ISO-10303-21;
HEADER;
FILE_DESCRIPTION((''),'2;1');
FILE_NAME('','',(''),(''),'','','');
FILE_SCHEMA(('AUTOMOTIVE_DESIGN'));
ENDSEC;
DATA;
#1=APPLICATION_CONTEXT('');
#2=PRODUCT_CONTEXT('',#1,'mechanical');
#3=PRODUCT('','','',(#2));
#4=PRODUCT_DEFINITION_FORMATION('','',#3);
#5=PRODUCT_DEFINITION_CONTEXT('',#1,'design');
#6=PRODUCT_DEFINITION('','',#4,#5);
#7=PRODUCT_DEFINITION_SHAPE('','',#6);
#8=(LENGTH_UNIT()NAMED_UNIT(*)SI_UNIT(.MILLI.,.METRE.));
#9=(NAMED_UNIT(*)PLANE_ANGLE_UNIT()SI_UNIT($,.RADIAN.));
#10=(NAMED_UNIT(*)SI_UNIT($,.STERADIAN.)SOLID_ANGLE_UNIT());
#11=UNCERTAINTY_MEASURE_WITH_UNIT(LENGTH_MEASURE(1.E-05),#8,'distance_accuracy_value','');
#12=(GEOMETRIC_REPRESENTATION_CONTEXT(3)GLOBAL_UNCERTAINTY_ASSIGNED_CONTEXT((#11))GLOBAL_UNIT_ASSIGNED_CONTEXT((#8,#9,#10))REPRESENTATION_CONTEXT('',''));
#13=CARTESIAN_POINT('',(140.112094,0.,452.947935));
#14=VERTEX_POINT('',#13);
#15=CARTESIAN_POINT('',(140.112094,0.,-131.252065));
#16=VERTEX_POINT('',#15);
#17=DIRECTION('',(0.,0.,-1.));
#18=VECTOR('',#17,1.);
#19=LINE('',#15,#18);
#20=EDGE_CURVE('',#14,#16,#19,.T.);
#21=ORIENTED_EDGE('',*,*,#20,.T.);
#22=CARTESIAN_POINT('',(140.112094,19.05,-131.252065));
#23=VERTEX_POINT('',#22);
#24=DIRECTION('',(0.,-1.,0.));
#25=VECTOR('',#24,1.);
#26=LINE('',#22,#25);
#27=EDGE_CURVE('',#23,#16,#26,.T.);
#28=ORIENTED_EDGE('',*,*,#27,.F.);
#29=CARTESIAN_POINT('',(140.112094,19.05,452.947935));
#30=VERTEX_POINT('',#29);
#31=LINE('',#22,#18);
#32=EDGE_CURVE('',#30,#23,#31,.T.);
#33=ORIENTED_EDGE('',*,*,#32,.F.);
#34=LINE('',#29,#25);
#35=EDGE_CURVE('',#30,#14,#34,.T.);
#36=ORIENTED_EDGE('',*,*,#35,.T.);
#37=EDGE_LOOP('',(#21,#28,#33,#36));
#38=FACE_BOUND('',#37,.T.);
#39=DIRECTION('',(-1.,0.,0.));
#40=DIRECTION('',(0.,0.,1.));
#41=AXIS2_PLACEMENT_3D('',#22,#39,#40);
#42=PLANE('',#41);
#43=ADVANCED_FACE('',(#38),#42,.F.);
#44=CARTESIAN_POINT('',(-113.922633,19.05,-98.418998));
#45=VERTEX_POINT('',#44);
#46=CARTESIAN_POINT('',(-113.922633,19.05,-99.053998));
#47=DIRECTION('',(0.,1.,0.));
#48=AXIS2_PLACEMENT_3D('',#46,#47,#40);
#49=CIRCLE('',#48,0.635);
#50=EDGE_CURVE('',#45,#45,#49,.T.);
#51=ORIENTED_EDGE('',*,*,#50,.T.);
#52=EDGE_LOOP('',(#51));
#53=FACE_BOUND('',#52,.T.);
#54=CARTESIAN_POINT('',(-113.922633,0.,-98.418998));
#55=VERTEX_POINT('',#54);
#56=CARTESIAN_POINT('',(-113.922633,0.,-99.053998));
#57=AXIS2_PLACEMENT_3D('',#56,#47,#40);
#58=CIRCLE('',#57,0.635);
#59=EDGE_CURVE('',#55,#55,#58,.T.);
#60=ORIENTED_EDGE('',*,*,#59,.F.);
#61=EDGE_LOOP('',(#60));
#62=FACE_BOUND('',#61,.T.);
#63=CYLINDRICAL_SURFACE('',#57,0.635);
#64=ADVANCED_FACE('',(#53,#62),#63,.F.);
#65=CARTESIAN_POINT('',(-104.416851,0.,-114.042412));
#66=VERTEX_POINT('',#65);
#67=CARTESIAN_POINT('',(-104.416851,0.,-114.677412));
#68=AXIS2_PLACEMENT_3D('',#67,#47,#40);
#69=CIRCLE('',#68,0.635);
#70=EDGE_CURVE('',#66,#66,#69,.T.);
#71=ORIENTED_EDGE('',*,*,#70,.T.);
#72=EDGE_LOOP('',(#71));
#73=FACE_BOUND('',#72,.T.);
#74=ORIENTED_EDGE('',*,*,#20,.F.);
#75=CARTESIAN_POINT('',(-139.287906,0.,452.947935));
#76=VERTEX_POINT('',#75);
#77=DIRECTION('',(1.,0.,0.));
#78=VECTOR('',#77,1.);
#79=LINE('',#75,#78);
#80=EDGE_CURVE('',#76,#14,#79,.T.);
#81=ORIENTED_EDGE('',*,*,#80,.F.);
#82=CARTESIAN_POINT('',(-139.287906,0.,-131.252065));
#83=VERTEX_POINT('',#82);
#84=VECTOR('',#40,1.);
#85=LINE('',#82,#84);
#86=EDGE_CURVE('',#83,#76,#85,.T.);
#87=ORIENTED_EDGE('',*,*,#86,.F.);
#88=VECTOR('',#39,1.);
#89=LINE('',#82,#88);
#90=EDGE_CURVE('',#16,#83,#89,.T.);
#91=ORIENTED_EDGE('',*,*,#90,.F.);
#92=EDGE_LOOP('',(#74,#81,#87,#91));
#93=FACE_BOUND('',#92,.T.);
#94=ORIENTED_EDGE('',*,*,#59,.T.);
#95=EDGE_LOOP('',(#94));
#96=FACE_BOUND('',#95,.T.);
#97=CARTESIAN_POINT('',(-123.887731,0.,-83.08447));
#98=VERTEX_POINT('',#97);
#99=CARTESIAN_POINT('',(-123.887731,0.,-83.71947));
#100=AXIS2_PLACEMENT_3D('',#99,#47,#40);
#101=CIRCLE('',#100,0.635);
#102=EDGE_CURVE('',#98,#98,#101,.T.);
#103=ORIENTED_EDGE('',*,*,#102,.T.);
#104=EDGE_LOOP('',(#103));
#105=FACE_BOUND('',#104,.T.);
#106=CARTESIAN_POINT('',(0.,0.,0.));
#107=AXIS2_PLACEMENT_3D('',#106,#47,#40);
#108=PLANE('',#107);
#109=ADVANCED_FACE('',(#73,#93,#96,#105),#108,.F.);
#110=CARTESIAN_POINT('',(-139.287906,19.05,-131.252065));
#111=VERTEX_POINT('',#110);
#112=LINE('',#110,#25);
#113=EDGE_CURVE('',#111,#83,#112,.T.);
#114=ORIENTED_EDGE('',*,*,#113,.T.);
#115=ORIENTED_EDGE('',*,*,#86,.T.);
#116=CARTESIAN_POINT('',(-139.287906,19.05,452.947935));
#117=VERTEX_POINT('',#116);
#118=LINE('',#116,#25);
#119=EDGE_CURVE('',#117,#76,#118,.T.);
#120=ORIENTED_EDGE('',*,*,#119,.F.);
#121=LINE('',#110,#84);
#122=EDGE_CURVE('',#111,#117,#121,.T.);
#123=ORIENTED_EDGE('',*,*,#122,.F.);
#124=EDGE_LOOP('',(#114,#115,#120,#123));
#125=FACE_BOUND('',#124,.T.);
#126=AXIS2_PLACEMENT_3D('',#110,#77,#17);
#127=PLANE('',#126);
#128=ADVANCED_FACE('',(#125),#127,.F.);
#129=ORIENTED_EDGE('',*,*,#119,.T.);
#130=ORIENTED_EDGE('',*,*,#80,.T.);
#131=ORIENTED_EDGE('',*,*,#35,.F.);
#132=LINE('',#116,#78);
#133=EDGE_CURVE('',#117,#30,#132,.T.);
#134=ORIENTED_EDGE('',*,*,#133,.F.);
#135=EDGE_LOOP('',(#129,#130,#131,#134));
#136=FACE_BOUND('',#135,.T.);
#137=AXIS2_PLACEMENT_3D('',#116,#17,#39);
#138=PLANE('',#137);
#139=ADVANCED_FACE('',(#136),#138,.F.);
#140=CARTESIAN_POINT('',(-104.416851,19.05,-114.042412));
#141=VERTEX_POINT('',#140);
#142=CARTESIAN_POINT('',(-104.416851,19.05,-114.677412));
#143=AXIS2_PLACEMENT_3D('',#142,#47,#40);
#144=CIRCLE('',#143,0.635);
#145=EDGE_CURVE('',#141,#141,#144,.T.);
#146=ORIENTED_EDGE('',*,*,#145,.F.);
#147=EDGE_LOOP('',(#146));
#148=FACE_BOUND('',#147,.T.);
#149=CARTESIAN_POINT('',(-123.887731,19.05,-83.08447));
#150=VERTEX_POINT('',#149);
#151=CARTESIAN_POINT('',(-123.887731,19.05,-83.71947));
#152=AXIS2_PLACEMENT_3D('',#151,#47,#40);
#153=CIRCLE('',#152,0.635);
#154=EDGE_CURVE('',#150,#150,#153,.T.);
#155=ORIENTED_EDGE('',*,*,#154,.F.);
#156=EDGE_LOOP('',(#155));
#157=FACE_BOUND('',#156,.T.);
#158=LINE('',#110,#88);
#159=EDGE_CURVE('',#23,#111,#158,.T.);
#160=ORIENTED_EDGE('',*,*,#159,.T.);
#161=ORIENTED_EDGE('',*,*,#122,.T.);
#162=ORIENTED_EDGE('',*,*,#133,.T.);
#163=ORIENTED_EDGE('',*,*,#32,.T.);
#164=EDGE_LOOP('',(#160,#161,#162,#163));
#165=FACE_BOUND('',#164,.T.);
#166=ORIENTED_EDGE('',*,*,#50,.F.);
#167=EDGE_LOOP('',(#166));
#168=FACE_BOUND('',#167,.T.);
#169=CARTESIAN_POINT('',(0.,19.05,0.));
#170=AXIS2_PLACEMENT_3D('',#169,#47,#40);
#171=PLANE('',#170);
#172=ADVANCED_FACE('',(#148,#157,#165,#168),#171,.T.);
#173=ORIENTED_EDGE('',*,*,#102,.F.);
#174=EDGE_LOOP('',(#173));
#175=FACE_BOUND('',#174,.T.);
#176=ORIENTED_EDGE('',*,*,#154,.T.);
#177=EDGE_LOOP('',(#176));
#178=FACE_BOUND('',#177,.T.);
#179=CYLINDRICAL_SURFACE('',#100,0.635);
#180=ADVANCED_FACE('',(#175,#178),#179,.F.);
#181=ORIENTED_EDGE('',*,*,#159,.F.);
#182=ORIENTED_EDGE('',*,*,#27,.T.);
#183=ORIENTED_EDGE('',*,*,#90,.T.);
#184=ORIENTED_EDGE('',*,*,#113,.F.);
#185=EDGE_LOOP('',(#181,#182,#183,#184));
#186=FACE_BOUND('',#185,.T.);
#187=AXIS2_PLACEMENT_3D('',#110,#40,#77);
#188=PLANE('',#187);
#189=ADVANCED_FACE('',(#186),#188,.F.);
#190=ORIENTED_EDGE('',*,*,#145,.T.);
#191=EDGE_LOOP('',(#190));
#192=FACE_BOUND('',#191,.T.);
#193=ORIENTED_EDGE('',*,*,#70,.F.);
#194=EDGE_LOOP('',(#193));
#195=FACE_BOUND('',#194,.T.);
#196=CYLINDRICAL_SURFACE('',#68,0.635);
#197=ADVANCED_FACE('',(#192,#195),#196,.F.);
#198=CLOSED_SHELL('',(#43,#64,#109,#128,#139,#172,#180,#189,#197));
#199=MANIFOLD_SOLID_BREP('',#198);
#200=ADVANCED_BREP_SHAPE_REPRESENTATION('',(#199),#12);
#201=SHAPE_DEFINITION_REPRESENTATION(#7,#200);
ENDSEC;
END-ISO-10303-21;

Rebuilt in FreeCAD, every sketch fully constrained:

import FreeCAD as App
import Part
import Sketcher
from FreeCAD import Vector
Q = App.Units.Quantity


def add_polygon(sketch, points):
    """Adds a closed chain of lines whose ends are joined by coincident constraints."""
    first, n = sketch.GeometryCount, len(points)
    for a, b in zip(points, points[1:] + points[:1]):
        sketch.addGeometry(Part.LineSegment(App.Vector(*a, 0), App.Vector(*b, 0)), False)
    for i in range(n):
        sketch.addConstraint(Sketcher.Constraint("Coincident", first + i, 2, first + (i + 1) % n, 1))

doc = App.newDocument("Part")
body = doc.addObject("PartDesign::Body", "Body")

sketch1 = body.newObject("Sketcher::SketchObject", "Sketch")
sketch1.AttachmentSupport = (doc.getObject("XZ_Plane"), [""])
sketch1.MapMode = "FlatFace"
add_polygon(sketch1, [(-139, -131), (-139, 453), (140, 453), (140, -131)])
sketch1.addConstraint([
    Sketcher.Constraint("Vertical", 0),
    Sketcher.Constraint("Horizontal", 1),
    Sketcher.Constraint("Vertical", 2),
    Sketcher.Constraint("Horizontal", 3),
    Sketcher.Constraint("DistanceX", 1, 1, 1, 2, Q("11 in")),
    Sketcher.Constraint("DistanceY", 0, 1, 0, 2, Q("23 in")),
    Sketcher.Constraint("DistanceX", 0, 2, -1, 1, Q("139.287906 mm")),
    Sketcher.Constraint("DistanceY", -1, 1, 0, 2, Q("452.947935 mm")),
])
pad1 = body.newObject("PartDesign::Pad", "Pad")
pad1.Profile = sketch1
pad1.Length = Q("0.75 in")
pad1.Reversed = True

sketch2 = body.newObject("Sketcher::SketchObject", "Sketch001")
sketch2.AttachmentSupport = (doc.getObject("XZ_Plane"), [""])
sketch2.MapMode = "FlatFace"
sketch2.AttachmentOffset = App.Placement(Vector(0, 0, -0.75 * 25.4), App.Rotation())
sketch2.addGeometry([
    Part.Circle(Vector(-113.9, -99.1, 0), Vector(0, 0, 1), 0.6),
    Part.Circle(Vector(-104.4, -114.7, 0), Vector(0, 0, 1), 0.6),
    Part.Circle(Vector(-123.9, -83.7, 0), Vector(0, 0, 1), 0.6),
], False)
sketch2.addConstraint([
    Sketcher.Constraint("Equal", 0, 1),
    Sketcher.Constraint("Equal", 1, 2),
    Sketcher.Constraint("Diameter", 0, Q("0.05 in")),
    Sketcher.Constraint("DistanceY", 0, 3, -1, 1, Q("99.053998 mm")),
    Sketcher.Constraint("DistanceX", 1, 3, -1, 1, Q("104.416851 mm")),
    Sketcher.Constraint("DistanceY", 1, 3, -1, 1, Q("114.677412 mm")),
    Sketcher.Constraint("DistanceX", 2, 3, -1, 1, Q("123.887731 mm")),
    Sketcher.Constraint("DistanceY", 2, 3, -1, 1, Q("83.71947 mm")),
    Sketcher.Constraint("DistanceX", 0, 3, -1, 1, Q("113.922633 mm")),
])
pocket1 = body.newObject("PartDesign::Pocket", "Pocket")
pocket1.Profile = sketch2
pocket1.Type = "ThroughAll"
pocket1.Midplane = True

doc.recompute()
